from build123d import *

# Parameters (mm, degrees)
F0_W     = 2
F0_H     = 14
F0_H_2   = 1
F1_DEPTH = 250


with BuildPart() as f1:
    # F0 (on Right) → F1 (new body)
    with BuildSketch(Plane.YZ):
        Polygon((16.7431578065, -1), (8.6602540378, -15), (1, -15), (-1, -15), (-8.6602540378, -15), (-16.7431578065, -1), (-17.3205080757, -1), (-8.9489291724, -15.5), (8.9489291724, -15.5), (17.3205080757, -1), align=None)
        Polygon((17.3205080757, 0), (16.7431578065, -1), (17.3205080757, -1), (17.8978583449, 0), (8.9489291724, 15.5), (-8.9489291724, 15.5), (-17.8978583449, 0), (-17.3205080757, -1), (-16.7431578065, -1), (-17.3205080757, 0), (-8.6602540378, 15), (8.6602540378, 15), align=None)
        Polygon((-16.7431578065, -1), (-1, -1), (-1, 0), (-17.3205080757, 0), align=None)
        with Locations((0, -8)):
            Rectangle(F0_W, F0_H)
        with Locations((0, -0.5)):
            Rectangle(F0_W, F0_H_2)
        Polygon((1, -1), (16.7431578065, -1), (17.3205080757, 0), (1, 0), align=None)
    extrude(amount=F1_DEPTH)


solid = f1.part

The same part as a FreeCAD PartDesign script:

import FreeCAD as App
import Part
import Sketcher
from FreeCAD import Vector
Q = App.Units.Quantity

doc = App.newDocument("Part")
body = doc.addObject("PartDesign::Body", "Body")

# Sketch on YZ plane
sketch1 = body.newObject("Sketcher::SketchObject", "Sketch")
sketch1.AttachmentSupport = (doc.getObject("YZ_Plane"), [""])
sketch1.MapMode = "FlatFace"
sketch1.addGeometry([
    Part.LineSegment(Vector(-17.3, -1, 0), Vector(-8.9, -15.5, 0)),  # 0
    Part.LineSegment(Vector(-8.9, -15.5, 0), Vector(8.9, -15.5, 0)),  # 1
    Part.LineSegment(Vector(8.9, -15.5, 0), Vector(17.3, -1, 0)),  # 2
    Part.LineSegment(Vector(17.3, -1, 0), Vector(17.9, 0, 0)),  # 3
    Part.LineSegment(Vector(17.9, 0, 0), Vector(8.9, 15.5, 0)),  # 4
    Part.LineSegment(Vector(8.9, 15.5, 0), Vector(-8.9, 15.5, 0)),  # 5
    Part.LineSegment(Vector(-8.9, 15.5, 0), Vector(-17.9, 0, 0)),  # 6
    Part.LineSegment(Vector(-17.9, 0, 0), Vector(-17.3, -1, 0)),  # 7
    Part.LineSegment(Vector(-1, -1, 0), Vector(-1, -15, 0)),  # 8
    Part.LineSegment(Vector(-1, -15, 0), Vector(-8.7, -15, 0)),  # 9
    Part.LineSegment(Vector(-8.7, -15, 0), Vector(-16.7, -1, 0)),  # 10
    Part.LineSegment(Vector(-16.7, -1, 0), Vector(-1, -1, 0)),  # 11
    Part.LineSegment(Vector(1, -15, 0), Vector(1, -1, 0)),  # 12
    Part.LineSegment(Vector(1, -1, 0), Vector(16.7, -1, 0)),  # 13
    Part.LineSegment(Vector(16.7, -1, 0), Vector(8.7, -15, 0)),  # 14
    Part.LineSegment(Vector(8.7, -15, 0), Vector(1, -15, 0)),  # 15
    Part.LineSegment(Vector(-17.3, 0, 0), Vector(-8.7, 15, 0)),  # 16
    Part.LineSegment(Vector(-8.7, 15, 0), Vector(8.7, 15, 0)),  # 17
    Part.LineSegment(Vector(8.7, 15, 0), Vector(17.3, 0, 0)),  # 18
    Part.LineSegment(Vector(17.3, 0, 0), Vector(-17.3, 0, 0)),  # 19
], False)
sketch1.addConstraint([
    Sketcher.Constraint("Coincident", 0, 2, 1, 1),
    Sketcher.Constraint("Coincident", 1, 2, 2, 1),
    Sketcher.Constraint("Coincident", 2, 2, 3, 1),
    Sketcher.Constraint("Coincident", 3, 2, 4, 1),
    Sketcher.Constraint("Coincident", 4, 2, 5, 1),
    Sketcher.Constraint("Coincident", 5, 2, 6, 1),
    Sketcher.Constraint("Coincident", 6, 2, 7, 1),
    Sketcher.Constraint("Coincident", 7, 2, 0, 1),
    Sketcher.Constraint("Coincident", 8, 2, 9, 1),
    Sketcher.Constraint("Coincident", 9, 2, 10, 1),
    Sketcher.Constraint("Coincident", 10, 2, 11, 1),
    Sketcher.Constraint("Coincident", 11, 2, 8, 1),
    Sketcher.Constraint("Coincident", 12, 2, 13, 1),
    Sketcher.Constraint("Coincident", 13, 2, 14, 1),
    Sketcher.Constraint("Coincident", 14, 2, 15, 1),
    Sketcher.Constraint("Coincident", 15, 2, 12, 1),
    Sketcher.Constraint("Coincident", 16, 2, 17, 1),
    Sketcher.Constraint("Coincident", 17, 2, 18, 1),
    Sketcher.Constraint("Coincident", 18, 2, 19, 1),
    Sketcher.Constraint("Coincident", 19, 2, 16, 1),
    Sketcher.Constraint("Horizontal", 1),
    Sketcher.Constraint("Horizontal", 5),
    Sketcher.Constraint("Vertical", 8),
    Sketcher.Constraint("Horizontal", 9),
    Sketcher.Constraint("Horizontal", 11),
    Sketcher.Constraint("Vertical", 12),
    Sketcher.Constraint("Horizontal", 13),
    Sketcher.Constraint("Horizontal", 15),
    Sketcher.Constraint("Horizontal", 17),
    Sketcher.Constraint("Horizontal", 19),
    Sketcher.Constraint("Symmetric", 0, 2, 4, 2, -1, 1),
    Sketcher.Constraint("Symmetric", 3, 2, 6, 2, -1, 1),
    Sketcher.Constraint("Symmetric", 14, 2, 16, 2, -1, 1),
    Sketcher.Constraint("Symmetric", 9, 2, 17, 2, -1, 1),
    Sketcher.Constraint("Symmetric", 18, 2, 19, 2, -1, 1),
    Sketcher.Constraint("Symmetric", 2, 2, 7, 2, -2),
    Sketcher.Constraint("Symmetric", 11, 2, 12, 2, -2),
    Sketcher.Constraint("PointOnObject", 3, 2, -1),
    Sketcher.Constraint("Parallel", 2, 3),
    Sketcher.Constraint("Parallel", 0, 4),
    Sketcher.Constraint("Parallel", 3, 6),
    Sketcher.Constraint("Parallel", 7, 10),
    Sketcher.Constraint("Parallel", 6, 14),
    Sketcher.Constraint("Parallel", 14, 16),
    Sketcher.Constraint("Parallel", 10, 18),
    Sketcher.Constraint("Horizontal", 7, 2, 10, 2),
    Sketcher.Constraint("Vertical", 2, 2, 18, 2),
    Sketcher.Constraint("DistanceY", 8, 2, 8, 1, Q("14 mm")),
    Sketcher.Constraint("Angle", 0, Q("-60 deg")),
    Sketcher.Constraint("DistanceY", 2, 2, -1, 1, Q("1 mm")),
    Sketcher.Constraint("DistanceX", 8, 2, -1, 1, Q("1 mm")),
    Sketcher.Constraint("DistanceY", 1, 2, 4, 2, Q("31 mm")),
    Sketcher.Constraint("DistanceX", 1, 1, 1, 2, Q("17.897858 mm")),
])
pad1 = body.newObject("PartDesign::Pad", "Pad")
pad1.Profile = sketch1
pad1.Length = 250

doc.recompute()
